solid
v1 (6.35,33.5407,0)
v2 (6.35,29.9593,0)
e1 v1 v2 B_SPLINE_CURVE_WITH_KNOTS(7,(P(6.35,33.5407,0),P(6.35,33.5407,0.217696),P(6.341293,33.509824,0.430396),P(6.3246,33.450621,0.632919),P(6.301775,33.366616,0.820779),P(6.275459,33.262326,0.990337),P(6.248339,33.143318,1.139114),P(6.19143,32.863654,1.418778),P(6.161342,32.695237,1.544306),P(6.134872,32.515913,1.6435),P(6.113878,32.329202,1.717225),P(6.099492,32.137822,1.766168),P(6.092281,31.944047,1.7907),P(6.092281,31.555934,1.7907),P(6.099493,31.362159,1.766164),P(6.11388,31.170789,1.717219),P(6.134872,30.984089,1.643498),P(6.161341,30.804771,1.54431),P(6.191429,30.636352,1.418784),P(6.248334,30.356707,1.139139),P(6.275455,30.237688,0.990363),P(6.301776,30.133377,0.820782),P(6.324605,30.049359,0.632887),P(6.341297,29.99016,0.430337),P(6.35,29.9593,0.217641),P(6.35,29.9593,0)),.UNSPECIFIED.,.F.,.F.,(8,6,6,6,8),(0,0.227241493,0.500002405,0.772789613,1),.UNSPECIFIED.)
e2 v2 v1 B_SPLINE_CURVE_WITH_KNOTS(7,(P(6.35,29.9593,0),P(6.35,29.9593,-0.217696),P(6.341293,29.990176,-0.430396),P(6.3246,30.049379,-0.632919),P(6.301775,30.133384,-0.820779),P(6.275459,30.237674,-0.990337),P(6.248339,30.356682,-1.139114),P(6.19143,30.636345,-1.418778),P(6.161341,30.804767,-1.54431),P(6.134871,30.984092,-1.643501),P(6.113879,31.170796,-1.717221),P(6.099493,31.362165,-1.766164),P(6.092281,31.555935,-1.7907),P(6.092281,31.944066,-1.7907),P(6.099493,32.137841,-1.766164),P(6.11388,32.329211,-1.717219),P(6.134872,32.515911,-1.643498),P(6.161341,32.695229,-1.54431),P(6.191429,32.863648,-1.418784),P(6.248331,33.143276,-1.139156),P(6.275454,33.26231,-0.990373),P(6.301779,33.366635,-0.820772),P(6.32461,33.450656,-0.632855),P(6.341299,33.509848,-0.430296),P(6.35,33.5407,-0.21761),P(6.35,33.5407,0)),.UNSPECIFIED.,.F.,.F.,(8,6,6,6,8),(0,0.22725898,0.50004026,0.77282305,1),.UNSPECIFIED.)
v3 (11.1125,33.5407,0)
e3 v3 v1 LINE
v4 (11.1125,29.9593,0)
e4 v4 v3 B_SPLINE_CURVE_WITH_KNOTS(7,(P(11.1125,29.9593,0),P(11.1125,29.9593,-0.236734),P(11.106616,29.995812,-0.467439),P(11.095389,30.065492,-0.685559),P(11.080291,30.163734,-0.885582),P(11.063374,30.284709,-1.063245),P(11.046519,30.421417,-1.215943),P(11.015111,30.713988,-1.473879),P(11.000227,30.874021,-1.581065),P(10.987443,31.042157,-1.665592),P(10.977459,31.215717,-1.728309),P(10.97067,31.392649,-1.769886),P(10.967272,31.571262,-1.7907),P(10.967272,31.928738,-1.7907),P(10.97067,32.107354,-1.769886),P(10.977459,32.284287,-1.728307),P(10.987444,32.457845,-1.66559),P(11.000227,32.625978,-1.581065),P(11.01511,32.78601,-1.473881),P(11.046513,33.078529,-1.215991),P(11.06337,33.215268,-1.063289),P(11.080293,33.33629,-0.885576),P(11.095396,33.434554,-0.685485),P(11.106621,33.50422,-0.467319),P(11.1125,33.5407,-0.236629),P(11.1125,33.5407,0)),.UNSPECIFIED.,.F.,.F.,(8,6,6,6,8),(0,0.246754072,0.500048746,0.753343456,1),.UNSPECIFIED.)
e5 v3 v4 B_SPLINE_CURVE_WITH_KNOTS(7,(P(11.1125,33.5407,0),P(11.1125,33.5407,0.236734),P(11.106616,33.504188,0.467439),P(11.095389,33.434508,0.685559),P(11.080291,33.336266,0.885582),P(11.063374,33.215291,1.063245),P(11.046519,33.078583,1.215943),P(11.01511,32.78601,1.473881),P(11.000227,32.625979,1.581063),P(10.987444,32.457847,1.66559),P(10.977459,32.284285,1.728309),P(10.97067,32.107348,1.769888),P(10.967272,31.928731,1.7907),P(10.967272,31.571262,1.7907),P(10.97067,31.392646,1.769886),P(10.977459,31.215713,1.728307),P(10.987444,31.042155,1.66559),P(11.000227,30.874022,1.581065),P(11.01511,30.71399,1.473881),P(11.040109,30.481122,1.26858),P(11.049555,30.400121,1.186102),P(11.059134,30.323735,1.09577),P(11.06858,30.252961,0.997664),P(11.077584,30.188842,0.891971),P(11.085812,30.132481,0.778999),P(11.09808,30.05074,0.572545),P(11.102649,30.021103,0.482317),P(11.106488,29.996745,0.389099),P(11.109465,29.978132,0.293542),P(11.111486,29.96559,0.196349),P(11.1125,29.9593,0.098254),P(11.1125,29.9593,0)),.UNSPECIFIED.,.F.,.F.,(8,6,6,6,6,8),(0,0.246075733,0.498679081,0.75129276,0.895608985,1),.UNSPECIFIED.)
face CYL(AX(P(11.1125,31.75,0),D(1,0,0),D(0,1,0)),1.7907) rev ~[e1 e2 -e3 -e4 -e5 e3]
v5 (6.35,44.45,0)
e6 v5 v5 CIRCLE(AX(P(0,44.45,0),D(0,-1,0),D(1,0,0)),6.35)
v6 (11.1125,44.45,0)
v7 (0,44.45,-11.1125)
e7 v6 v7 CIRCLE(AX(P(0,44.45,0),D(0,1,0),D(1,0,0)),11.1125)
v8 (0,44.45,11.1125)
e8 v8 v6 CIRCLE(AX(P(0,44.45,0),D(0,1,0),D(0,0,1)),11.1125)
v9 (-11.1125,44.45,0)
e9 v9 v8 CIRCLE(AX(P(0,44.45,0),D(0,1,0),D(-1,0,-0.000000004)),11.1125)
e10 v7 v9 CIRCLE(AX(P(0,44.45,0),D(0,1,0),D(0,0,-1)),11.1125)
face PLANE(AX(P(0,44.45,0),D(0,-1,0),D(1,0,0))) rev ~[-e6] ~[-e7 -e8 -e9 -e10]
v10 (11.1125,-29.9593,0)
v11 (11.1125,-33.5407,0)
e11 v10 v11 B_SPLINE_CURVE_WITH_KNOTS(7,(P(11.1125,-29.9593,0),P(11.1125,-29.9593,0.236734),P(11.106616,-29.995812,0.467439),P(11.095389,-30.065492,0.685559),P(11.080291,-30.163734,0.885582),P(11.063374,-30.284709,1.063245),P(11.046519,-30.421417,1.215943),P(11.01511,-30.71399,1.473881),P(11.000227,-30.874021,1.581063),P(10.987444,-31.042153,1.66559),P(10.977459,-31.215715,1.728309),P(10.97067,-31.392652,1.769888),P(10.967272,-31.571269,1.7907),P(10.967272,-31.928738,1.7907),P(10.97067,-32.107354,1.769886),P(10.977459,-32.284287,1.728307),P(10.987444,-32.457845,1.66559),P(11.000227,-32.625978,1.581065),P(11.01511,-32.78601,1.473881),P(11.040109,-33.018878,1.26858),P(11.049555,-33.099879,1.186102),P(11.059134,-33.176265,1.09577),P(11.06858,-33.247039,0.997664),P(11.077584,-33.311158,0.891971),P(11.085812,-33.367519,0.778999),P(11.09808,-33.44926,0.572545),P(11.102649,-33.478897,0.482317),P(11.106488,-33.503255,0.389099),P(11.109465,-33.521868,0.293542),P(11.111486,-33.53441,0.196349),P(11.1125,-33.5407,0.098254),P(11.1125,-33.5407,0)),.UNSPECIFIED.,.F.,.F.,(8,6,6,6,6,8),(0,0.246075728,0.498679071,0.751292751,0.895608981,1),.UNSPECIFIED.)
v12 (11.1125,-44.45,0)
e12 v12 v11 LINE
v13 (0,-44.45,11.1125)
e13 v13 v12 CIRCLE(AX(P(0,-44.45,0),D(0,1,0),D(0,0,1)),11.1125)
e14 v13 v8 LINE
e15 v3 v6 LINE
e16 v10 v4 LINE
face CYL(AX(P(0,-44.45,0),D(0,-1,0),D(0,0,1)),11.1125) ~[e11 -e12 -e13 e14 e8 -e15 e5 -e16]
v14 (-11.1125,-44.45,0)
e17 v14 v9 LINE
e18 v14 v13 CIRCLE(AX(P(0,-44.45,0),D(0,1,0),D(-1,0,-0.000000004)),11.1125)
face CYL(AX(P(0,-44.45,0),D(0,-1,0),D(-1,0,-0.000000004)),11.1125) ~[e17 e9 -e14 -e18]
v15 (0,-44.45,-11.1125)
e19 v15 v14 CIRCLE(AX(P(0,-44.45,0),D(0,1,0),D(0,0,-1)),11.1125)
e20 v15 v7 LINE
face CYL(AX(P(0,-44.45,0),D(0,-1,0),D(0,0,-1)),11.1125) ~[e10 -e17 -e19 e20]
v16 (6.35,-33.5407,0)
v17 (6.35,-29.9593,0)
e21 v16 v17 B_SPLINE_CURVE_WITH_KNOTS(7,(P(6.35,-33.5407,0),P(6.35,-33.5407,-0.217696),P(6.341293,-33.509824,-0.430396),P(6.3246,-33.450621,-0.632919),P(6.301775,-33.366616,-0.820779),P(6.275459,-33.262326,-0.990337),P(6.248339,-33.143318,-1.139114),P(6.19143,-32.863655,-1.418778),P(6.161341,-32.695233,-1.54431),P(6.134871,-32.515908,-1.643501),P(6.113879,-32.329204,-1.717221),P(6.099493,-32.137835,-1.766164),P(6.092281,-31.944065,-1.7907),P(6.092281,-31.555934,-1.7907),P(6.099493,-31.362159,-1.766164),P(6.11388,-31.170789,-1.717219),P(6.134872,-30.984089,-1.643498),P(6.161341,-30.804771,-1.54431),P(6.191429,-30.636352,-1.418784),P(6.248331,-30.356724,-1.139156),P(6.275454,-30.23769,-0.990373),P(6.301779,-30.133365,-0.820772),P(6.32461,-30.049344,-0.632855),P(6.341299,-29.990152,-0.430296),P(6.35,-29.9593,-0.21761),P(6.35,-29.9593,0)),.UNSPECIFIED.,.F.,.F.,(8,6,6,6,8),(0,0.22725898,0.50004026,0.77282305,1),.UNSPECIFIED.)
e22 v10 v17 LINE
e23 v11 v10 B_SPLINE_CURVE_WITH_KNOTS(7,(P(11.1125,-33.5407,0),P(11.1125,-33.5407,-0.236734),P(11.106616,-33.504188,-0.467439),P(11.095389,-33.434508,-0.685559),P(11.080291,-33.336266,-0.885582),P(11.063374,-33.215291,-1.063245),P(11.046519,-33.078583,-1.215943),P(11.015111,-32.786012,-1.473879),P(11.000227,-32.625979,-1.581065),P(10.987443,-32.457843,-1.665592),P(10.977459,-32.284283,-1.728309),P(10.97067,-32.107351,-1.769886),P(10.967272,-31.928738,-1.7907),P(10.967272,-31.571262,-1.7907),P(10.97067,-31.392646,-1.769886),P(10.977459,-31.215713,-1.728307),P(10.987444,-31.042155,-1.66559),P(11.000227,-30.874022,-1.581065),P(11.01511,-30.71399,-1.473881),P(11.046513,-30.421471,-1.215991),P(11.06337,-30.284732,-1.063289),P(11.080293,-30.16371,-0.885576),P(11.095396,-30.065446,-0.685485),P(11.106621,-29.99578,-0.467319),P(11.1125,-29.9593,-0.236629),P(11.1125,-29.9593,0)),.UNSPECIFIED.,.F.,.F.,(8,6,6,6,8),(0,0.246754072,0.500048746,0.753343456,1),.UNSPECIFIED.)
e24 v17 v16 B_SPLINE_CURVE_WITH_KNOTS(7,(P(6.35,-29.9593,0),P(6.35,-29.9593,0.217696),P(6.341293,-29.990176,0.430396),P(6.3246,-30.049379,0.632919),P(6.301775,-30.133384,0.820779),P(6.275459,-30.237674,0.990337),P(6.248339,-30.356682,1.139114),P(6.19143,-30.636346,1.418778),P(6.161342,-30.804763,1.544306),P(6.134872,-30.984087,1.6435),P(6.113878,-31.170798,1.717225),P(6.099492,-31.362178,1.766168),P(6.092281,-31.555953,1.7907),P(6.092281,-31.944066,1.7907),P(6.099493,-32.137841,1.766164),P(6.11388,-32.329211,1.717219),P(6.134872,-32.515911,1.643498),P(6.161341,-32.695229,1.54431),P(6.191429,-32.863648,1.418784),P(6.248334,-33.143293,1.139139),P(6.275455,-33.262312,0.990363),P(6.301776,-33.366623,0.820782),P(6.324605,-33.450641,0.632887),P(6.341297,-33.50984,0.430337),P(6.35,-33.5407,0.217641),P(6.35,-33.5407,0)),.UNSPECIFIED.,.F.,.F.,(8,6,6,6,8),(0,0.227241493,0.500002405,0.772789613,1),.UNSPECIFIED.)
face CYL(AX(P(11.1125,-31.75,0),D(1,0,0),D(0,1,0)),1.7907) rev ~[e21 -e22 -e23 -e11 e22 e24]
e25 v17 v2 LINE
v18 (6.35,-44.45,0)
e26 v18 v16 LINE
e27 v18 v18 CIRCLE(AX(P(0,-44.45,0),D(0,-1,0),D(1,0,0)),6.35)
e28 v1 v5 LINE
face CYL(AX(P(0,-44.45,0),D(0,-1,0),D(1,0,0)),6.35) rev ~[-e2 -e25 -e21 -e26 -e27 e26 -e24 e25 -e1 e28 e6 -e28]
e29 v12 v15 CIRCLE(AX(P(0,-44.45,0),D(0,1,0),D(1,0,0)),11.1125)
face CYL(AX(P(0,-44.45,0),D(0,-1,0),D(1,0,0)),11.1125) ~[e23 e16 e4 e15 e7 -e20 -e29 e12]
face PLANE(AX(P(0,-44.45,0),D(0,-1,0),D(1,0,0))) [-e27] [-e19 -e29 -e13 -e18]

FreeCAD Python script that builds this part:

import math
import FreeCAD as App
import Part
import Sketcher

V = App.Vector
Q = App.Units.Quantity

doc = App.newDocument("Part")
body = doc.addObject("PartDesign::Body", "Body")

sketch1 = body.newObject("Sketcher::SketchObject", "Sketch")
sketch1.AttachmentSupport = (doc.getObject("XZ_Plane"), [""])
sketch1.MapMode = "FlatFace"
sketch1.addGeometry(Part.LineSegment(V(-11, 11, 0), V(-11, -11, 0)), False)
sketch1.addGeometry(Part.LineSegment(V(-11, -11, 0), V(11, -11, 0)), False)
sketch1.addGeometry(Part.LineSegment(V(11, -11, 0), V(11, 11, 0)), False)
sketch1.addGeometry(Part.LineSegment(V(11, 11, 0), V(-11, 11, 0)), False)
sketch1.addConstraint(Sketcher.Constraint("Coincident", 0, 2, 1, 1))
sketch1.addConstraint(Sketcher.Constraint("Coincident", 1, 2, 2, 1))
sketch1.addConstraint(Sketcher.Constraint("Coincident", 2, 2, 3, 1))
sketch1.addConstraint(Sketcher.Constraint("Coincident", 3, 2, 0, 1))
sketch1.addConstraint(Sketcher.Constraint("Vertical", 0))
sketch1.addConstraint(Sketcher.Constraint("Horizontal", 1))
sketch1.addConstraint(Sketcher.Constraint("Vertical", 2))
sketch1.addConstraint(Sketcher.Constraint("Horizontal", 3))
sketch1.addConstraint(Sketcher.Constraint("Symmetric", 0, 2, 2, 2, -1, 1))
sketch1.addConstraint(Sketcher.Constraint("Equal", 3, 0))
sketch1.addConstraint(Sketcher.Constraint("DistanceX", 1, 1, 1, 2, Q("0.875 in")))
pad1 = body.newObject("PartDesign::Pad", "Pad")
pad1.Profile = sketch1
pad1.Length = Q("3.5 in")
pad1.Midplane = True

sketch2 = body.newObject("Sketcher::SketchObject", "Sketch001")
sketch2.AttachmentSupport = (doc.getObject("YZ_Plane"), [""])
sketch2.MapMode = "FlatFace"
sketch2.AttachmentOffset = App.Placement(V(0, 0, 0.4375 * 25.4), App.Rotation())
sketch2.addGeometry(Part.Circle(V(31.8, 0, 0), V(0, 0, 1), 1.8), False)
sketch2.addConstraint(Sketcher.Constraint("PointOnObject", 0, 3, -1))
sketch2.addConstraint(Sketcher.Constraint("Diameter", 0, Q("0.141 in")))
sketch2.addConstraint(Sketcher.Constraint("DistanceX", -1, 1, 0, 3, Q("1.25 in")))
pocket1 = body.newObject("PartDesign::Pocket", "Pocket")
pocket1.Profile = sketch2
pocket1.Length = Q("0.4 in")

sketch3 = body.newObject("Sketcher::SketchObject", "Sketch002")
sketch3.AttachmentSupport = (doc.getObject("YZ_Plane"), [""])
sketch3.MapMode = "FlatFace"
sketch3.AttachmentOffset = App.Placement(V(0, 0, 0.4375 * 25.4), App.Rotation())
sketch3.addGeometry(Part.Circle(V(-31.8, 0, 0), V(0, 0, 1), 1.8), False)
sketch3.addConstraint(Sketcher.Constraint("PointOnObject", 0, 3, -1))
sketch3.addConstraint(Sketcher.Constraint("Diameter", 0, Q("0.141 in")))
sketch3.addConstraint(Sketcher.Constraint("DistanceX", 0, 3, -1, 1, Q("1.25 in")))
pocket2 = body.newObject("PartDesign::Pocket", "Pocket001")
pocket2.Profile = sketch3
pocket2.Length = Q("0.4 in")

sketch4 = body.newObject("Sketcher::SketchObject", "Sketch003")
sketch4.AttachmentSupport = (doc.getObject("XZ_Plane"), [""])
sketch4.MapMode = "FlatFace"
sketch4.AttachmentOffset = App.Placement(V(0, 0, 1.75 * 25.4), App.Rotation())
sketch4.addGeometry(Part.ArcOfCircle(Part.Circle(V(0, 0, 0), V(0, 0, 1), 11), math.radians(90), math.radians(180)), False)
sketch4.addGeometry(Part.LineSegment(V(0, 11, 0), V(-11, 11, 0)), False)
sketch4.addGeometry(Part.LineSegment(V(-11, 11, 0), V(-11, 0, 0)), False)
sketch4.addGeometry(Part.ArcOfCircle(Part.Circle(V(0, 0, 0), V(0, 0, 1), 11), math.radians(0), math.radians(90)), False)
sketch4.addGeometry(Part.LineSegment(V(11, 0, 0), V(11, 11, 0)), False)
sketch4.addGeometry(Part.LineSegment(V(11, 11, 0), V(0, 11, 0)), False)
sketch4.addGeometry(Part.LineSegment(V(11, -11, 0), V(11, 0, 0)), False)
sketch4.addGeometry(Part.ArcOfCircle(Part.Circle(V(0, 0, 0), V(0, 0, 1), 11), math.radians(-90), math.radians(0)), False)
sketch4.addGeometry(Part.LineSegment(V(0, -11, 0), V(11, -11, 0)), False)
sketch4.addGeometry(Part.LineSegment(V(-11, -11, 0), V(0, -11, 0)), False)
sketch4.addGeometry(Part.ArcOfCircle(Part.Circle(V(0, 0, 0), V(0, 0, 1), 11), math.radians(-180), math.radians(-90)), False)
sketch4.addGeometry(Part.LineSegment(V(-11, 0, 0), V(-11, -11, 0)), False)
sketch4.addConstraint(Sketcher.Constraint("Tangent", 0, 1, 1, 1))
sketch4.addConstraint(Sketcher.Constraint("Coincident", 1, 2, 2, 1))
sketch4.addConstraint(Sketcher.Constraint("Tangent", 2, 2, 0, 2))
sketch4.addConstraint(Sketcher.Constraint("Tangent", 3, 1, 4, 1))
sketch4.addConstraint(Sketcher.Constraint("Coincident", 4, 2, 5, 1))
sketch4.addConstraint(Sketcher.Constraint("Tangent", 5, 2, 3, 2))
sketch4.addConstraint(Sketcher.Constraint("Tangent", 6, 2, 7, 2))
sketch4.addConstraint(Sketcher.Constraint("Tangent", 7, 1, 8, 1))
sketch4.addConstraint(Sketcher.Constraint("Coincident", 8, 2, 6, 1))
sketch4.addConstraint(Sketcher.Constraint("Tangent", 9, 2, 10, 2))
sketch4.addConstraint(Sketcher.Constraint("Tangent", 10, 1, 11, 1))
sketch4.addConstraint(Sketcher.Constraint("Coincident", 11, 2, 9, 1))
sketch4.addConstraint(Sketcher.Constraint("Horizontal", 1))
sketch4.addConstraint(Sketcher.Constraint("Vertical", 2))
sketch4.addConstraint(Sketcher.Constraint("Vertical", 4))
sketch4.addConstraint(Sketcher.Constraint("Horizontal", 5))
sketch4.addConstraint(Sketcher.Constraint("Vertical", 6))
sketch4.addConstraint(Sketcher.Constraint("Horizontal", 8))
sketch4.addConstraint(Sketcher.Constraint("Horizontal", 9))
sketch4.addConstraint(Sketcher.Constraint("Vertical", 11))
sketch4.addConstraint(Sketcher.Constraint("Coincident", 0, 3, -1, 1))
sketch4.addConstraint(Sketcher.Constraint("Coincident", 3, 3, -1, 1))
sketch4.addConstraint(Sketcher.Constraint("Coincident", 7, 3, -1, 1))
sketch4.addConstraint(Sketcher.Constraint("Coincident", 10, 3, -1, 1))
sketch4.addConstraint(Sketcher.Constraint("Equal", 0, 3))
sketch4.addConstraint(Sketcher.Constraint("Equal", 3, 7))
sketch4.addConstraint(Sketcher.Constraint("Equal", 7, 10))
sketch4.addConstraint(Sketcher.Constraint("Radius", 0, Q("0.4375 in")))
pocket3 = body.newObject("PartDesign::Pocket", "Pocket002")
pocket3.Profile = sketch4
pocket3.Length = Q("3.5 in")

sketch5 = body.newObject("Sketcher::SketchObject", "Sketch004")
sketch5.AttachmentSupport = (doc.getObject("XZ_Plane"), [""])
sketch5.MapMode = "FlatFace"
sketch5.AttachmentOffset = App.Placement(V(0, 0, 1.75 * 25.4), App.Rotation())
sketch5.addGeometry(Part.Circle(V(0, 0, 0), V(0, 0, 1), 6), False)
sketch5.addConstraint(Sketcher.Constraint("Coincident", 0, 3, -1, 1))
sketch5.addConstraint(Sketcher.Constraint("Diameter", 0, Q("0.5 in")))
pocket4 = body.newObject("PartDesign::Pocket", "Pocket003")
pocket4.Profile = sketch5
pocket4.Length = Q("3.5 in")

doc.recompute()
